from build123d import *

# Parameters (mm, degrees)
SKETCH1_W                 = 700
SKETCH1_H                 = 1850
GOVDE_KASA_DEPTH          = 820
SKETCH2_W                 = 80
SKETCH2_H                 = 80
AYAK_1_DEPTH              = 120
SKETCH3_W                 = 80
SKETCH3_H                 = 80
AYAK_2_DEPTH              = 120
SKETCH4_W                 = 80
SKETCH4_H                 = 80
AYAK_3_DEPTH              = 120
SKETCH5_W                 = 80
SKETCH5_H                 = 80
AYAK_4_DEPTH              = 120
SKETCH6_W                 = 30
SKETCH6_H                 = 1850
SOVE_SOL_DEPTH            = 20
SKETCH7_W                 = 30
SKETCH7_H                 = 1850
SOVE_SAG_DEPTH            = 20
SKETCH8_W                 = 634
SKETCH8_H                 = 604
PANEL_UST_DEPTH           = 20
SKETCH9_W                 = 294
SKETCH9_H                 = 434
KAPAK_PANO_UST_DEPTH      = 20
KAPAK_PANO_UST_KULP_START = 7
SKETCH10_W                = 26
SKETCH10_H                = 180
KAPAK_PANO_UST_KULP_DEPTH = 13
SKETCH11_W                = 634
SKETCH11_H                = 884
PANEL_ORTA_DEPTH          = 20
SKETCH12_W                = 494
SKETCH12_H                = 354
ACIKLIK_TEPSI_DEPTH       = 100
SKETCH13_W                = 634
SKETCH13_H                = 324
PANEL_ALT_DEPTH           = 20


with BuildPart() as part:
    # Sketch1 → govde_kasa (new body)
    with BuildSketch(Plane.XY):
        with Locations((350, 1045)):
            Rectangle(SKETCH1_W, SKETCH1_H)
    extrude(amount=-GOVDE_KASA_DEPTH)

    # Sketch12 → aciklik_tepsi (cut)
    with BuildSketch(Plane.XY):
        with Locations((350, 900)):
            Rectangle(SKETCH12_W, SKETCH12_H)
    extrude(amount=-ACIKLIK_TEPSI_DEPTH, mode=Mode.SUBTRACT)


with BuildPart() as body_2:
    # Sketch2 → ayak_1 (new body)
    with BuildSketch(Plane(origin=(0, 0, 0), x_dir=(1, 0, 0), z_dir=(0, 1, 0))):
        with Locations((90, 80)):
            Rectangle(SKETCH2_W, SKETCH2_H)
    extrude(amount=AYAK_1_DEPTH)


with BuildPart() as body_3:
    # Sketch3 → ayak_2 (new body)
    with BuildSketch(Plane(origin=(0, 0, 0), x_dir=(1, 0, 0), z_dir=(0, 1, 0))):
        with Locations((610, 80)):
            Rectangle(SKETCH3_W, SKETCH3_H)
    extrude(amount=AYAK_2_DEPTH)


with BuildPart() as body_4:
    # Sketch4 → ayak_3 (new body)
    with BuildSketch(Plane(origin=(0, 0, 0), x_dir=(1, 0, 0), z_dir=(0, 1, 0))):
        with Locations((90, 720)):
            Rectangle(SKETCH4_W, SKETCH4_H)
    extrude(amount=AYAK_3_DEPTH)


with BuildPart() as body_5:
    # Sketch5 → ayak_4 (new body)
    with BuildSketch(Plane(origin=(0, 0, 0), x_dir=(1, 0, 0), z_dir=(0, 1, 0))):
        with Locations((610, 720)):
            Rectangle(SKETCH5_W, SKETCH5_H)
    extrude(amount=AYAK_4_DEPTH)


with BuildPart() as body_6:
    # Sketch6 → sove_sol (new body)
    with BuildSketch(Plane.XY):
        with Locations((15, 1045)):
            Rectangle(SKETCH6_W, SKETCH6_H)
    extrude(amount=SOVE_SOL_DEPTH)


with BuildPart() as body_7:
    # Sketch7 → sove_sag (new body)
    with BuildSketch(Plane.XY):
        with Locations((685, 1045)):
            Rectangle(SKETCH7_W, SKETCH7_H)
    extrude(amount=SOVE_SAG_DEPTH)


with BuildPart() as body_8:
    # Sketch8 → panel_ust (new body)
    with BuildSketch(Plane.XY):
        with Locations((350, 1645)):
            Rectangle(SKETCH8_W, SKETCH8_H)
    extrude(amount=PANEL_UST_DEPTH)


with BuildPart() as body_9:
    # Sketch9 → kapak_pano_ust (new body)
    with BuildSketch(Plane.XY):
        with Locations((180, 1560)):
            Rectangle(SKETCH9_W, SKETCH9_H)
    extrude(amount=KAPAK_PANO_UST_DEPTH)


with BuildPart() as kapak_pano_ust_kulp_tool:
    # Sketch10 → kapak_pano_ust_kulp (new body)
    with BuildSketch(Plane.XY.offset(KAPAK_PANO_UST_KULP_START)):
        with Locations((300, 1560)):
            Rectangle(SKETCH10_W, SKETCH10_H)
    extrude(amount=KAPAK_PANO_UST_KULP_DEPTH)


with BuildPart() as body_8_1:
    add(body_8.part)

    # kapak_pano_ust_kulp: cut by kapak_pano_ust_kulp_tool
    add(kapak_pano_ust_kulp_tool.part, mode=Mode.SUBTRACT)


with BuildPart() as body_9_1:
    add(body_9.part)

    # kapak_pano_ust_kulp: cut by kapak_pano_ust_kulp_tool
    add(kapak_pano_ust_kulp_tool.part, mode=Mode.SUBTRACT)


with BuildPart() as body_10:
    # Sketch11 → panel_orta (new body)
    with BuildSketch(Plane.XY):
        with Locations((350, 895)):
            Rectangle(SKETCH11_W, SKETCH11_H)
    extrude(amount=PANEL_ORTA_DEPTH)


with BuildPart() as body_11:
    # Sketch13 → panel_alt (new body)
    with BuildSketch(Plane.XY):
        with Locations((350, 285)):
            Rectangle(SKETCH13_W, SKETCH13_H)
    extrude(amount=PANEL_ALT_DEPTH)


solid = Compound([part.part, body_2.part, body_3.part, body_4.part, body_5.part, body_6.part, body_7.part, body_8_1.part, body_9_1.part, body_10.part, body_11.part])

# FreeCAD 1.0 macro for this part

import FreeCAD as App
import Part
import Sketcher
Q = App.Units.Quantity


def add_polygon(sketch, points):
    """Adds a closed chain of lines whose ends are joined by coincident constraints."""
    first, n = sketch.GeometryCount, len(points)
    for a, b in zip(points, points[1:] + points[:1]):
        sketch.addGeometry(Part.LineSegment(App.Vector(*a, 0), App.Vector(*b, 0)), False)
    for i in range(n):
        sketch.addConstraint(Sketcher.Constraint("Coincident", first + i, 2, first + (i + 1) % n, 1))

doc = App.newDocument("Part")
body = doc.addObject("PartDesign::Body", "Body")

sketch1 = doc.addObject("Sketcher::SketchObject", "Sketch")
body.addObject(sketch1)
sketch1.AttachmentSupport = (doc.XY_Plane, [""])
sketch1.MapMode = "FlatFace"
add_polygon(sketch1, [(0, 1970), (0, 120), (700, 120), (700, 1970)])
sketch1.addConstraint(Sketcher.Constraint("Vertical", 0))
sketch1.addConstraint(Sketcher.Constraint("Horizontal", 1))
sketch1.addConstraint(Sketcher.Constraint("Vertical", 2))
sketch1.addConstraint(Sketcher.Constraint("Horizontal", 3))
sketch1.addConstraint(Sketcher.Constraint("PointOnObject", 0, 2, -2))
sketch1.addConstraint(Sketcher.Constraint("DistanceX", 1, 1, 1, 2, Q("700 mm")))
sketch1.addConstraint(Sketcher.Constraint("DistanceY", 0, 2, 0, 1, Q("1850 mm")))
sketch1.addConstraint(Sketcher.Constraint("DistanceY", -1, 1, 0, 2, Q("120 mm")))
pad1 = doc.addObject("PartDesign::Pad", "Pad")
body.addObject(pad1)
pad1.Profile = sketch1
pad1.Length = 820
pad1.Reversed = True

sketch2 = doc.addObject("Sketcher::SketchObject", "Sketch001")
body.addObject(sketch2)
sketch2.AttachmentSupport = (doc.XY_Plane, [""])
sketch2.MapMode = "FlatFace"
add_polygon(sketch2, [(103, 1077), (103, 723), (597, 723), (597, 1077)])
sketch2.addConstraint(Sketcher.Constraint("Vertical", 0))
sketch2.addConstraint(Sketcher.Constraint("Horizontal", 1))
sketch2.addConstraint(Sketcher.Constraint("Vertical", 2))
sketch2.addConstraint(Sketcher.Constraint("Horizontal", 3))
sketch2.addConstraint(Sketcher.Constraint("DistanceX", 1, 1, 1, 2, Q("494 mm")))
sketch2.addConstraint(Sketcher.Constraint("DistanceY", 0, 2, 0, 1, Q("354 mm")))
sketch2.addConstraint(Sketcher.Constraint("DistanceX", -1, 1, 0, 2, Q("103 mm")))
sketch2.addConstraint(Sketcher.Constraint("DistanceY", -1, 1, 0, 2, Q("723 mm")))
pocket1 = doc.addObject("PartDesign::Pocket", "Pocket")
body.addObject(pocket1)
pocket1.Profile = sketch2
pocket1.Length = 100
body2 = doc.addObject("PartDesign::Body", "Body001")

sketch3 = doc.addObject("Sketcher::SketchObject", "Sketch002")
body2.addObject(sketch3)
sketch3.AttachmentSupport = (doc.getObject("XZ_Plane001"), [""])
sketch3.MapMode = "FlatFace"
add_polygon(sketch3, [(50, -120), (50, -40), (130, -40), (130, -120)])
sketch3.addConstraint(Sketcher.Constraint("Vertical", 0))
sketch3.addConstraint(Sketcher.Constraint("Horizontal", 1))
sketch3.addConstraint(Sketcher.Constraint("Vertical", 2))
sketch3.addConstraint(Sketcher.Constraint("Horizontal", 3))
sketch3.addConstraint(Sketcher.Constraint("Equal", 3, 0))
sketch3.addConstraint(Sketcher.Constraint("DistanceX", 1, 1, 1, 2, Q("80 mm")))
sketch3.addConstraint(Sketcher.Constraint("DistanceX", -1, 1, 0, 2, Q("50 mm")))
sketch3.addConstraint(Sketcher.Constraint("DistanceY", 0, 2, -1, 1, Q("40 mm")))
pad2 = doc.addObject("PartDesign::Pad", "Pad001")
body2.addObject(pad2)
pad2.Profile = sketch3
pad2.Length = 120
pad2.Reversed = True
body3 = doc.addObject("PartDesign::Body", "Body002")

sketch4 = doc.addObject("Sketcher::SketchObject", "Sketch003")
body3.addObject(sketch4)
sketch4.AttachmentSupport = (doc.getObject("XZ_Plane002"), [""])
sketch4.MapMode = "FlatFace"
add_polygon(sketch4, [(570, -120), (570, -40), (650, -40), (650, -120)])
sketch4.addConstraint(Sketcher.Constraint("Vertical", 0))
sketch4.addConstraint(Sketcher.Constraint("Horizontal", 1))
sketch4.addConstraint(Sketcher.Constraint("Vertical", 2))
sketch4.addConstraint(Sketcher.Constraint("Horizontal", 3))
sketch4.addConstraint(Sketcher.Constraint("Equal", 3, 0))
sketch4.addConstraint(Sketcher.Constraint("DistanceX", 1, 1, 1, 2, Q("80 mm")))
sketch4.addConstraint(Sketcher.Constraint("DistanceX", -1, 1, 0, 2, Q("570 mm")))
sketch4.addConstraint(Sketcher.Constraint("DistanceY", 0, 2, -1, 1, Q("40 mm")))
pad3 = doc.addObject("PartDesign::Pad", "Pad002")
body3.addObject(pad3)
pad3.Profile = sketch4
pad3.Length = 120
pad3.Reversed = True
body4 = doc.addObject("PartDesign::Body", "Body003")

sketch5 = doc.addObject("Sketcher::SketchObject", "Sketch004")
body4.addObject(sketch5)
sketch5.AttachmentSupport = (doc.getObject("XZ_Plane003"), [""])
sketch5.MapMode = "FlatFace"
add_polygon(sketch5, [(50, -760), (50, -680), (130, -680), (130, -760)])
sketch5.addConstraint(Sketcher.Constraint("Vertical", 0))
sketch5.addConstraint(Sketcher.Constraint("Horizontal", 1))
sketch5.addConstraint(Sketcher.Constraint("Vertical", 2))
sketch5.addConstraint(Sketcher.Constraint("Horizontal", 3))
sketch5.addConstraint(Sketcher.Constraint("Equal", 3, 0))
sketch5.addConstraint(Sketcher.Constraint("DistanceX", 1, 1, 1, 2, Q("80 mm")))
sketch5.addConstraint(Sketcher.Constraint("DistanceX", -1, 1, 0, 2, Q("50 mm")))
sketch5.addConstraint(Sketcher.Constraint("DistanceY", 0, 2, -1, 1, Q("680 mm")))
pad4 = doc.addObject("PartDesign::Pad", "Pad003")
body4.addObject(pad4)
pad4.Profile = sketch5
pad4.Length = 120
pad4.Reversed = True
body5 = doc.addObject("PartDesign::Body", "Body004")

sketch6 = doc.addObject("Sketcher::SketchObject", "Sketch005")
body5.addObject(sketch6)
sketch6.AttachmentSupport = (doc.getObject("XZ_Plane004"), [""])
sketch6.MapMode = "FlatFace"
add_polygon(sketch6, [(570, -760), (570, -680), (650, -680), (650, -760)])
sketch6.addConstraint(Sketcher.Constraint("Vertical", 0))
sketch6.addConstraint(Sketcher.Constraint("Horizontal", 1))
sketch6.addConstraint(Sketcher.Constraint("Vertical", 2))
sketch6.addConstraint(Sketcher.Constraint("Horizontal", 3))
sketch6.addConstraint(Sketcher.Constraint("Equal", 3, 0))
sketch6.addConstraint(Sketcher.Constraint("DistanceX", 1, 1, 1, 2, Q("80 mm")))
sketch6.addConstraint(Sketcher.Constraint("DistanceX", -1, 1, 0, 2, Q("570 mm")))
sketch6.addConstraint(Sketcher.Constraint("DistanceY", 0, 2, -1, 1, Q("680 mm")))
pad5 = doc.addObject("PartDesign::Pad", "Pad004")
body5.addObject(pad5)
pad5.Profile = sketch6
pad5.Length = 120
pad5.Reversed = True
body6 = doc.addObject("PartDesign::Body", "Body005")

sketch7 = doc.addObject("Sketcher::SketchObject", "Sketch006")
body6.addObject(sketch7)
sketch7.AttachmentSupport = (doc.getObject("XY_Plane005"), [""])
sketch7.MapMode = "FlatFace"
add_polygon(sketch7, [(0, 1970), (0, 120), (30, 120), (30, 1970)])
sketch7.addConstraint(Sketcher.Constraint("Vertical", 0))
sketch7.addConstraint(Sketcher.Constraint("Horizontal", 1))
sketch7.addConstraint(Sketcher.Constraint("Vertical", 2))
sketch7.addConstraint(Sketcher.Constraint("Horizontal", 3))
sketch7.addConstraint(Sketcher.Constraint("PointOnObject", 0, 2, -2))
sketch7.addConstraint(Sketcher.Constraint("DistanceX", 1, 1, 1, 2, Q("30 mm")))
sketch7.addConstraint(Sketcher.Constraint("DistanceY", 0, 2, 0, 1, Q("1850 mm")))
sketch7.addConstraint(Sketcher.Constraint("DistanceY", -1, 1, 0, 2, Q("120 mm")))
pad6 = doc.addObject("PartDesign::Pad", "Pad005")
body6.addObject(pad6)
pad6.Profile = sketch7
pad6.Length = 20
body7 = doc.addObject("PartDesign::Body", "Body006")

sketch8 = doc.addObject("Sketcher::SketchObject", "Sketch007")
body7.addObject(sketch8)
sketch8.AttachmentSupport = (doc.getObject("XY_Plane006"), [""])
sketch8.MapMode = "FlatFace"
add_polygon(sketch8, [(670, 1970), (670, 120), (700, 120), (700, 1970)])
sketch8.addConstraint(Sketcher.Constraint("Vertical", 0))
sketch8.addConstraint(Sketcher.Constraint("Horizontal", 1))
sketch8.addConstraint(Sketcher.Constraint("Vertical", 2))
sketch8.addConstraint(Sketcher.Constraint("Horizontal", 3))
sketch8.addConstraint(Sketcher.Constraint("DistanceX", 1, 1, 1, 2, Q("30 mm")))
sketch8.addConstraint(Sketcher.Constraint("DistanceY", 0, 2, 0, 1, Q("1850 mm")))
sketch8.addConstraint(Sketcher.Constraint("DistanceX", -1, 1, 0, 2, Q("670 mm")))
sketch8.addConstraint(Sketcher.Constraint("DistanceY", -1, 1, 0, 2, Q("120 mm")))
pad7 = doc.addObject("PartDesign::Pad", "Pad006")
body7.addObject(pad7)
pad7.Profile = sketch8
pad7.Length = 20
body8 = doc.addObject("PartDesign::Body", "Body007")

sketch9 = doc.addObject("Sketcher::SketchObject", "Sketch008")
body8.addObject(sketch9)
sketch9.AttachmentSupport = (doc.getObject("XY_Plane007"), [""])
sketch9.MapMode = "FlatFace"
add_polygon(sketch9, [(33, 1947), (33, 1343), (667, 1343), (667, 1947)])
sketch9.addConstraint(Sketcher.Constraint("Vertical", 0))
sketch9.addConstraint(Sketcher.Constraint("Horizontal", 1))
sketch9.addConstraint(Sketcher.Constraint("Vertical", 2))
sketch9.addConstraint(Sketcher.Constraint("Horizontal", 3))
sketch9.addConstraint(Sketcher.Constraint("DistanceX", 1, 1, 1, 2, Q("634 mm")))
sketch9.addConstraint(Sketcher.Constraint("DistanceY", 0, 2, 0, 1, Q("604 mm")))
sketch9.addConstraint(Sketcher.Constraint("DistanceX", -1, 1, 0, 2, Q("33 mm")))
sketch9.addConstraint(Sketcher.Constraint("DistanceY", -1, 1, 0, 2, Q("1343 mm")))
pad8 = doc.addObject("PartDesign::Pad", "Pad007")
body8.addObject(pad8)
pad8.Profile = sketch9
pad8.Length = 20
body9 = doc.addObject("PartDesign::Body", "Body008")

sketch10 = doc.addObject("Sketcher::SketchObject", "Sketch009")
body9.addObject(sketch10)
sketch10.AttachmentSupport = (doc.getObject("XY_Plane008"), [""])
sketch10.MapMode = "FlatFace"
add_polygon(sketch10, [(33, 1777), (33, 1343), (327, 1343), (327, 1777)])
sketch10.addConstraint(Sketcher.Constraint("Vertical", 0))
sketch10.addConstraint(Sketcher.Constraint("Horizontal", 1))
sketch10.addConstraint(Sketcher.Constraint("Vertical", 2))
sketch10.addConstraint(Sketcher.Constraint("Horizontal", 3))
sketch10.addConstraint(Sketcher.Constraint("DistanceX", 1, 1, 1, 2, Q("294 mm")))
sketch10.addConstraint(Sketcher.Constraint("DistanceY", 0, 2, 0, 1, Q("434 mm")))
sketch10.addConstraint(Sketcher.Constraint("DistanceX", -1, 1, 0, 2, Q("33 mm")))
sketch10.addConstraint(Sketcher.Constraint("DistanceY", -1, 1, 0, 2, Q("1343 mm")))
pad9 = doc.addObject("PartDesign::Pad", "Pad008")
body9.addObject(pad9)
pad9.Profile = sketch10
pad9.Length = 20
body10 = doc.addObject("PartDesign::Body", "Body009")

sketch11 = doc.addObject("Sketcher::SketchObject", "Sketch010")
body10.addObject(sketch11)
sketch11.AttachmentSupport = (doc.getObject("XY_Plane009"), [""])
sketch11.MapMode = "FlatFace"
sketch11.AttachmentOffset = App.Placement(App.Vector(0, 0, 7), App.Rotation())
add_polygon(sketch11, [(287, 1650), (287, 1470), (313, 1470), (313, 1650)])
sketch11.addConstraint(Sketcher.Constraint("Vertical", 0))
sketch11.addConstraint(Sketcher.Constraint("Horizontal", 1))
sketch11.addConstraint(Sketcher.Constraint("Vertical", 2))
sketch11.addConstraint(Sketcher.Constraint("Horizontal", 3))
sketch11.addConstraint(Sketcher.Constraint("DistanceX", 1, 1, 1, 2, Q("26 mm")))
sketch11.addConstraint(Sketcher.Constraint("DistanceY", 0, 2, 0, 1, Q("180 mm")))
sketch11.addConstraint(Sketcher.Constraint("DistanceX", -1, 1, 0, 2, Q("287 mm")))
sketch11.addConstraint(Sketcher.Constraint("DistanceY", -1, 1, 0, 2, Q("1470 mm")))
pad10 = doc.addObject("PartDesign::Pad", "Pad009")
body10.addObject(pad10)
pad10.Profile = sketch11
pad10.Length = 13
doc.recompute()

body11 = doc.addObject("PartDesign::Body", "Body010")
body11.BaseFeature = body10
boolean = doc.addObject("PartDesign::Boolean", "Boolean")
body8.addObject(boolean)
boolean.Type = "Cut"
boolean.addObjects([body11])
doc.recompute()

boolean2 = doc.addObject("PartDesign::Boolean", "Boolean001")
body9.addObject(boolean2)
boolean2.Type = "Cut"
boolean2.addObjects([body10])
body12 = doc.addObject("PartDesign::Body", "Body011")

sketch12 = doc.addObject("Sketcher::SketchObject", "Sketch011")
body12.addObject(sketch12)
sketch12.AttachmentSupport = (doc.getObject("XY_Plane011"), [""])
sketch12.MapMode = "FlatFace"
add_polygon(sketch12, [(33, 1337), (33, 453), (667, 453), (667, 1337)])
sketch12.addConstraint(Sketcher.Constraint("Vertical", 0))
sketch12.addConstraint(Sketcher.Constraint("Horizontal", 1))
sketch12.addConstraint(Sketcher.Constraint("Vertical", 2))
sketch12.addConstraint(Sketcher.Constraint("Horizontal", 3))
sketch12.addConstraint(Sketcher.Constraint("DistanceX", 1, 1, 1, 2, Q("634 mm")))
sketch12.addConstraint(Sketcher.Constraint("DistanceY", 0, 2, 0, 1, Q("884 mm")))
sketch12.addConstraint(Sketcher.Constraint("DistanceX", -1, 1, 0, 2, Q("33 mm")))
sketch12.addConstraint(Sketcher.Constraint("DistanceY", -1, 1, 0, 2, Q("453 mm")))
pad11 = doc.addObject("PartDesign::Pad", "Pad010")
body12.addObject(pad11)
pad11.Profile = sketch12
pad11.Length = 20
body13 = doc.addObject("PartDesign::Body", "Body012")

sketch13 = doc.addObject("Sketcher::SketchObject", "Sketch012")
body13.addObject(sketch13)
sketch13.AttachmentSupport = (doc.getObject("XY_Plane012"), [""])
sketch13.MapMode = "FlatFace"
add_polygon(sketch13, [(33, 447), (33, 123), (667, 123), (667, 447)])
sketch13.addConstraint(Sketcher.Constraint("Vertical", 0))
sketch13.addConstraint(Sketcher.Constraint("Horizontal", 1))
sketch13.addConstraint(Sketcher.Constraint("Vertical", 2))
sketch13.addConstraint(Sketcher.Constraint("Horizontal", 3))
sketch13.addConstraint(Sketcher.Constraint("DistanceX", 1, 1, 1, 2, Q("634 mm")))
sketch13.addConstraint(Sketcher.Constraint("DistanceY", 0, 2, 0, 1, Q("324 mm")))
sketch13.addConstraint(Sketcher.Constraint("DistanceX", -1, 1, 0, 2, Q("33 mm")))
sketch13.addConstraint(Sketcher.Constraint("DistanceY", -1, 1, 0, 2, Q("123 mm")))
pad12 = doc.addObject("PartDesign::Pad", "Pad011")
body13.addObject(pad12)
pad12.Profile = sketch13
pad12.Length = 20

doc.recompute()
